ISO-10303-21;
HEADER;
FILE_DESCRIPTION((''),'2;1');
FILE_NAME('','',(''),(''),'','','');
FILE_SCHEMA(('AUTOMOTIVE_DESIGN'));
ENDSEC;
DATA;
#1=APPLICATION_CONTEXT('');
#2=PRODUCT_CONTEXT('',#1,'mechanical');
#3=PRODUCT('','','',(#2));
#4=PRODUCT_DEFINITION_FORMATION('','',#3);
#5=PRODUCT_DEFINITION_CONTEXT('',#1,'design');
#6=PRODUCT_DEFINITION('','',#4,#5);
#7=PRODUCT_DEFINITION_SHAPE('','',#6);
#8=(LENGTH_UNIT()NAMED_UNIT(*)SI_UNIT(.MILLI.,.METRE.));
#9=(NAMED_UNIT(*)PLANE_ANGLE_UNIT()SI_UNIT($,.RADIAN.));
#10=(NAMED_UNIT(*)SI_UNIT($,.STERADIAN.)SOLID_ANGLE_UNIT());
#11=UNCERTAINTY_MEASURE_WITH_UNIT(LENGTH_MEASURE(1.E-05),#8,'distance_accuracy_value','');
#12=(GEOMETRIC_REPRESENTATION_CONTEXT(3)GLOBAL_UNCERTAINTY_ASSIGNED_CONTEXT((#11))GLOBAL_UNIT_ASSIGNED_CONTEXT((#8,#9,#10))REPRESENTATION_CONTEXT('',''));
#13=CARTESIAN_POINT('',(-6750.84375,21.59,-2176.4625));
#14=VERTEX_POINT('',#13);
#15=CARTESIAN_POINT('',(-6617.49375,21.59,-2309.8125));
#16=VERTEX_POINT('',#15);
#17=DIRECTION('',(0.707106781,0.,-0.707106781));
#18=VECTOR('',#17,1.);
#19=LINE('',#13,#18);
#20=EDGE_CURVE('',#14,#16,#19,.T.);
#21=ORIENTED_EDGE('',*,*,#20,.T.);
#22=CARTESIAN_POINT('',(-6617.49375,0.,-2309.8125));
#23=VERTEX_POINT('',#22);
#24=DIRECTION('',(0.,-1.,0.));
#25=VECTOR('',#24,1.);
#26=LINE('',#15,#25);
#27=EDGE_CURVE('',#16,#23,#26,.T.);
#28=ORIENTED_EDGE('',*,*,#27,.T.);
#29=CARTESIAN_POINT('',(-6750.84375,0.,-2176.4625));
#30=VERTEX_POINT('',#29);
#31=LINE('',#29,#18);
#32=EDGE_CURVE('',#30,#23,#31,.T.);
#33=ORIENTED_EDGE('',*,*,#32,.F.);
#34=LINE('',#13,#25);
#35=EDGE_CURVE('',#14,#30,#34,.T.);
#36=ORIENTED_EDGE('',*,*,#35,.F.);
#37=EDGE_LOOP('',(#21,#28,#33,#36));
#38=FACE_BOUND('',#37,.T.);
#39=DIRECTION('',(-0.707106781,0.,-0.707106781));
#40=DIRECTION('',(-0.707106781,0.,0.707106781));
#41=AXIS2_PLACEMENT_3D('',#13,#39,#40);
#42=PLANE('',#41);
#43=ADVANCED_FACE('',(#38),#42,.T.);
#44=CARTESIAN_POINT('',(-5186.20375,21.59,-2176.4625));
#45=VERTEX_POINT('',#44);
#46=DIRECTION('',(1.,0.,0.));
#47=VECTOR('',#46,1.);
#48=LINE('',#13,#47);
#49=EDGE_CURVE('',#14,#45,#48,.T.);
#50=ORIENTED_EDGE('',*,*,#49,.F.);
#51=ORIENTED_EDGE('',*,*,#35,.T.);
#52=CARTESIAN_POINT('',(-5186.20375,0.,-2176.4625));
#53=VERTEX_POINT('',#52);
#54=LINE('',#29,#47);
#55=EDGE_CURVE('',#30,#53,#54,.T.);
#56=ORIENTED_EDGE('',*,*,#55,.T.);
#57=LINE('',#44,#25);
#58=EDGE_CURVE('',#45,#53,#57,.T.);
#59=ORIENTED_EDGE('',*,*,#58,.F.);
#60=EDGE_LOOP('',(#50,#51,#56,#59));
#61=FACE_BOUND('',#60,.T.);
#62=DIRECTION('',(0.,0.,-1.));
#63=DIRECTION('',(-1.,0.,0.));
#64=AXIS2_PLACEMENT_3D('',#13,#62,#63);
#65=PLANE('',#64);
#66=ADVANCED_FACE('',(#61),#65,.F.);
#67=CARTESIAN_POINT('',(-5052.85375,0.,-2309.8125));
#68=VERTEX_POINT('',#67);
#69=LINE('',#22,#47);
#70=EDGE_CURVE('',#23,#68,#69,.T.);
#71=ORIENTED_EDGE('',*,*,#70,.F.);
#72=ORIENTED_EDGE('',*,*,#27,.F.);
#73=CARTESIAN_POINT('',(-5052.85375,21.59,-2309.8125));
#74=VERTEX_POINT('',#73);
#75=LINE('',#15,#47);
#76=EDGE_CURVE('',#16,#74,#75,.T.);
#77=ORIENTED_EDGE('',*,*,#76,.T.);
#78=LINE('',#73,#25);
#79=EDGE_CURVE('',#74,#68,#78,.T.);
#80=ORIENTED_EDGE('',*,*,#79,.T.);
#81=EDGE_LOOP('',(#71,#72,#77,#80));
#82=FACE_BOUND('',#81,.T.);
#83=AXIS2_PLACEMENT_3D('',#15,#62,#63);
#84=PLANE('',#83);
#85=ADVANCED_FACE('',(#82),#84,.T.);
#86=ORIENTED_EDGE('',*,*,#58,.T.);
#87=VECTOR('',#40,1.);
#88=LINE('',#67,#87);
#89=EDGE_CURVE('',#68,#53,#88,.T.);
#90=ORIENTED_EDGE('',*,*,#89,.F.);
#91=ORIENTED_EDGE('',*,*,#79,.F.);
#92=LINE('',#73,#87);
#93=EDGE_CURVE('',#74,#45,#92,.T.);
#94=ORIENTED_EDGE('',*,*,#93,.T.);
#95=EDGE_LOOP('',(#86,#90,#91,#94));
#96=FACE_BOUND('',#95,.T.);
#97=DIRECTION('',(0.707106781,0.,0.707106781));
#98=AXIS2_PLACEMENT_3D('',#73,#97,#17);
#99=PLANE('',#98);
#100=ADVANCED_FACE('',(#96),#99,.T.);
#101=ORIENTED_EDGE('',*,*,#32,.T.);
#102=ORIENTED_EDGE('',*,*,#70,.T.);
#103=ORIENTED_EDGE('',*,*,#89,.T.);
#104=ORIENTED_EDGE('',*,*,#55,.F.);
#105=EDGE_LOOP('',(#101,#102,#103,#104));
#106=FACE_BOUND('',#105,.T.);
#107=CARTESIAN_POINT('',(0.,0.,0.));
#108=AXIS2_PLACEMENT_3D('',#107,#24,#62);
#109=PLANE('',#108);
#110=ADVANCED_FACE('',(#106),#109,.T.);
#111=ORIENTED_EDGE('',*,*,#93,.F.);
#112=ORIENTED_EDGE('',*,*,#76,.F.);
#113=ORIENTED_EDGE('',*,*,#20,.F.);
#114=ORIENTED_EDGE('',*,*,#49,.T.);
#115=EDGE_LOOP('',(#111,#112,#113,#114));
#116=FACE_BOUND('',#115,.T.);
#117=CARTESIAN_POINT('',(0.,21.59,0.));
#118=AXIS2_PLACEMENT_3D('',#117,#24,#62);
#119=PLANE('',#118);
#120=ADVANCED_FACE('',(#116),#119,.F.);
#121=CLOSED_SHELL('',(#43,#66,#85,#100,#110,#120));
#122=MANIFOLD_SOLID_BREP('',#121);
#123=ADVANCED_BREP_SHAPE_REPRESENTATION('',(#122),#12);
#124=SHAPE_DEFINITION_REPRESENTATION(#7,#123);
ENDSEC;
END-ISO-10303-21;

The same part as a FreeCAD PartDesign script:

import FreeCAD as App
import Part
import Sketcher

V = App.Vector
Q = App.Units.Quantity

doc = App.newDocument("Part")
body = doc.addObject("PartDesign::Body", "Body")

# Sketch on XZ plane
sketch1 = doc.addObject("Sketcher::SketchObject", "Sketch")
body.addObject(sketch1)
sketch1.AttachmentSupport = (doc.XZ_Plane, [""])
sketch1.MapMode = "FlatFace"
sketch1.addGeometry(Part.LineSegment(V(-5052.85375, -2309.8125, 0), V(-6617.49375, -2309.8125, 0)), False)
sketch1.addGeometry(Part.LineSegment(V(-6617.49375, -2309.8125, 0), V(-6750.84375, -2176.4625, 0)), False)
sketch1.addGeometry(Part.LineSegment(V(-6750.84375, -2176.4625, 0), V(-5186.20375, -2176.4625, 0)), False)
sketch1.addGeometry(Part.LineSegment(V(-5186.20375, -2176.4625, 0), V(-5052.85375, -2309.8125, 0)), False)
sketch1.addConstraint(Sketcher.Constraint("Coincident", 0, 2, 1, 1))
sketch1.addConstraint(Sketcher.Constraint("Coincident", 1, 2, 2, 1))
sketch1.addConstraint(Sketcher.Constraint("Coincident", 2, 2, 3, 1))
sketch1.addConstraint(Sketcher.Constraint("Coincident", 3, 2, 0, 1))
sketch1.addConstraint(Sketcher.Constraint("Horizontal", 0))
sketch1.addConstraint(Sketcher.Constraint("Horizontal", 2))
sketch1.addConstraint(Sketcher.Constraint("Parallel", 1, 3))
sketch1.addConstraint(Sketcher.Constraint("DistanceX", 0, 2, 0, 1, Q("61.6 in")))
sketch1.addConstraint(Sketcher.Constraint("Angle", 1, Q("135 deg")))
sketch1.addConstraint(Sketcher.Constraint("DistanceX", 1, 2, 0, 2, Q("5.25 in")))
sketch1.addConstraint(Sketcher.Constraint("DistanceX", 0, 2, -1, 1, Q("260.53125 in")))
sketch1.addConstraint(Sketcher.Constraint("DistanceY", 0, 2, -1, 1, Q("90.9375 in")))
pad1 = doc.addObject("PartDesign::Pad", "Pad")
body.addObject(pad1)
pad1.Profile = sketch1
pad1.Length = Q("0.85 in")
pad1.Reversed = True

doc.recompute()
